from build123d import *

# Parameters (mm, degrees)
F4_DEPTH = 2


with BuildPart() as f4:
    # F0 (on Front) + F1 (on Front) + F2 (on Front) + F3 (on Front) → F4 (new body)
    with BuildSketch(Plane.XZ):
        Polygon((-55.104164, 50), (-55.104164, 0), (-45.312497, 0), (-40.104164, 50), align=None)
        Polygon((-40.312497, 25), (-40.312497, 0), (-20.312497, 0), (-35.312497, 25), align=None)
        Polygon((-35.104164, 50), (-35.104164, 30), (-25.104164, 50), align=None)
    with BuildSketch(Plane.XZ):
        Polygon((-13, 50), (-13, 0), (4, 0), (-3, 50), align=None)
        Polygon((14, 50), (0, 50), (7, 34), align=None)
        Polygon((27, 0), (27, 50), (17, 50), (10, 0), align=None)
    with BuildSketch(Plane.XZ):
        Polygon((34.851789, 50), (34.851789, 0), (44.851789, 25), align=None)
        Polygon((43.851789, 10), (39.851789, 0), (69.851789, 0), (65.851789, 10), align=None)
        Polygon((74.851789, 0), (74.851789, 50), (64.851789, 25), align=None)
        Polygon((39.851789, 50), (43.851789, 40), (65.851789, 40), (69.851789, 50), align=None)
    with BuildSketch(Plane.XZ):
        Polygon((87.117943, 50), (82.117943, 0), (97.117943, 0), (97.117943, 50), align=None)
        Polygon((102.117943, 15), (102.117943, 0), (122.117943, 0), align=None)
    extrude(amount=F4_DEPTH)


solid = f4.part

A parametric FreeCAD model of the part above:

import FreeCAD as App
import Part
import Sketcher

V = App.Vector


def add_polygon(sketch, points):
    """Adds a closed chain of lines whose ends are joined by coincident constraints."""
    first, n = sketch.GeometryCount, len(points)
    for a, b in zip(points, points[1:] + points[:1]):
        sketch.addGeometry(Part.LineSegment(App.Vector(*a, 0), App.Vector(*b, 0)), False)
    for i in range(n):
        sketch.addConstraint(Sketcher.Constraint("Coincident", first + i, 2, first + (i + 1) % n, 1))

doc = App.newDocument("Part")
body = doc.addObject("PartDesign::Body", "Body")
body.AllowCompound = True

# Sketch on XZ plane
sketch1 = doc.addObject("Sketcher::SketchObject", "Sketch")
body.addObject(sketch1)
sketch1.AttachmentSupport = (doc.XZ_Plane, [""])
sketch1.MapMode = "FlatFace"
add_polygon(sketch1, [(-55, 50), (-55, 0), (-45, 0), (-40, 50)])  # lines 0-3
add_polygon(sketch1, [(-40, 25), (-40, 0), (-20, 0), (-35, 25)])  # lines 4-7
add_polygon(sketch1, [(-35, 50), (-35, 30), (-25, 50)])  # lines 8-10
add_polygon(sketch1, [(-13, 50), (-13, 0), (4, 0), (-3, 50)])  # lines 11-14
add_polygon(sketch1, [(14, 50), (0, 50), (7, 34)])  # lines 15-17
add_polygon(sketch1, [(27, 0), (27, 50), (17, 50), (10, 0)])  # lines 18-21
add_polygon(sketch1, [(35, 50), (35, 0), (45, 25)])  # lines 22-24
add_polygon(sketch1, [(44, 10), (40, 0), (70, 0), (66, 10)])  # lines 25-28
add_polygon(sketch1, [(75, 0), (75, 50), (65, 25)])  # lines 29-31
add_polygon(sketch1, [(40, 50), (44, 40), (66, 40), (70, 50)])  # lines 32-35
add_polygon(sketch1, [(87, 50), (82, 0), (97, 0), (97, 50)])  # lines 36-39
add_polygon(sketch1, [(102, 15), (102, 0), (122, 0)])  # lines 40-42
sketch1.addConstraint(Sketcher.Constraint("Vertical", 0))
sketch1.addConstraint(Sketcher.Constraint("Horizontal", 1))
sketch1.addConstraint(Sketcher.Constraint("Horizontal", 3))
sketch1.addConstraint(Sketcher.Constraint("Vertical", 4))
sketch1.addConstraint(Sketcher.Constraint("Horizontal", 5))
sketch1.addConstraint(Sketcher.Constraint("Horizontal", 7))
sketch1.addConstraint(Sketcher.Constraint("Vertical", 8))
sketch1.addConstraint(Sketcher.Constraint("Horizontal", 10))
sketch1.addConstraint(Sketcher.Constraint("Vertical", 11))
sketch1.addConstraint(Sketcher.Constraint("Horizontal", 12))
sketch1.addConstraint(Sketcher.Constraint("Horizontal", 14))
sketch1.addConstraint(Sketcher.Constraint("Horizontal", 15))
sketch1.addConstraint(Sketcher.Constraint("Vertical", 18))
sketch1.addConstraint(Sketcher.Constraint("Horizontal", 19))
sketch1.addConstraint(Sketcher.Constraint("Horizontal", 21))
sketch1.addConstraint(Sketcher.Constraint("Vertical", 22))
sketch1.addConstraint(Sketcher.Constraint("Horizontal", 26))
sketch1.addConstraint(Sketcher.Constraint("Horizontal", 28))
sketch1.addConstraint(Sketcher.Constraint("Vertical", 29))
sketch1.addConstraint(Sketcher.Constraint("Horizontal", 33))
sketch1.addConstraint(Sketcher.Constraint("Horizontal", 35))
sketch1.addConstraint(Sketcher.Constraint("Horizontal", 37))
sketch1.addConstraint(Sketcher.Constraint("Vertical", 38))
sketch1.addConstraint(Sketcher.Constraint("Horizontal", 39))
sketch1.addConstraint(Sketcher.Constraint("Vertical", 40))
sketch1.addConstraint(Sketcher.Constraint("Horizontal", 41))
sketch1.addConstraint(Sketcher.Constraint("PointOnObject", 0, 2, -1))
sketch1.addConstraint(Sketcher.Constraint("PointOnObject", 4, 2, -1))
sketch1.addConstraint(Sketcher.Constraint("PointOnObject", 11, 2, -1))
sketch1.addConstraint(Sketcher.Constraint("PointOnObject", 15, 2, -2))
sketch1.addConstraint(Sketcher.Constraint("PointOnObject", 20, 2, -1))
sketch1.addConstraint(Sketcher.Constraint("PointOnObject", 22, 2, -1))
sketch1.addConstraint(Sketcher.Constraint("PointOnObject", 25, 2, -1))
sketch1.addConstraint(Sketcher.Constraint("PointOnObject", 31, 2, -1))
sketch1.addConstraint(Sketcher.Constraint("PointOnObject", 36, 2, -1))
sketch1.addConstraint(Sketcher.Constraint("PointOnObject", 40, 2, -1))
sketch1.addConstraint(Sketcher.Constraint("Parallel", 23, 25))
sketch1.addConstraint(Sketcher.Constraint("Parallel", 24, 27))
sketch1.addConstraint(Sketcher.Constraint("Parallel", 25, 30))
sketch1.addConstraint(Sketcher.Constraint("Parallel", 27, 31))
sketch1.addConstraint(Sketcher.Constraint("Parallel", 31, 32))
sketch1.addConstraint(Sketcher.Constraint("Parallel", 30, 34))
sketch1.addConstraint(Sketcher.Constraint("Horizontal", 3, 2, 9, 2))
sketch1.addConstraint(Sketcher.Constraint("Horizontal", 10, 2, 13, 2))
sketch1.addConstraint(Sketcher.Constraint("Horizontal", 14, 2, 15, 2))
sketch1.addConstraint(Sketcher.Constraint("Horizontal", 17, 2, 18, 2))
sketch1.addConstraint(Sketcher.Constraint("Horizontal", 7, 2, 23, 2))
sketch1.addConstraint(Sketcher.Constraint("Horizontal", 19, 2, 24, 2))
sketch1.addConstraint(Sketcher.Constraint("Horizontal", 24, 2, 29, 2))
sketch1.addConstraint(Sketcher.Constraint("Horizontal", 23, 2, 30, 2))
sketch1.addConstraint(Sketcher.Constraint("Horizontal", 29, 2, 34, 2))
sketch1.addConstraint(Sketcher.Constraint("Horizontal", 35, 2, 38, 2))
sketch1.addConstraint(Sketcher.Constraint("Vertical", 28, 2, 32, 2))
sketch1.addConstraint(Sketcher.Constraint("Vertical", 27, 2, 33, 2))
sketch1.addConstraint(Sketcher.Constraint("Vertical", 26, 2, 34, 2))
sketch1.addConstraint(Sketcher.Constraint("Equal", 10, 14))
sketch1.addConstraint(Sketcher.Constraint("Equal", 14, 19))
sketch1.addConstraint(Sketcher.Constraint("Equal", 12, 21))
sketch1.addConstraint(Sketcher.Constraint("Equal", 3, 37))
sketch1.addConstraint(Sketcher.Constraint("Equal", 19, 39))
sketch1.addConstraint(Sketcher.Constraint("Equal", 5, 41))
sketch1.addConstraint(Sketcher.Constraint("Equal", 41, 8))
sketch1.addConstraint(Sketcher.Constraint("Equal", 37, 40))
sketch1.addConstraint(Sketcher.Constraint("Equal", 16, 17))
sketch1.addConstraint(Sketcher.Constraint("DistanceX", 3, 2, 3, 1, 15.0))
sketch1.addConstraint(Sketcher.Constraint("DistanceX", 5, 1, 5, 2, 20.0))
sketch1.addConstraint(Sketcher.Constraint("DistanceX", 7, 2, 7, 1, 5.0))
sketch1.addConstraint(Sketcher.Constraint("DistanceX", 10, 2, 10, 1, 10.0))
sketch1.addConstraint(Sketcher.Constraint("DistanceX", 12, 1, 12, 2, 17.0))
sketch1.addConstraint(Sketcher.Constraint("DistanceX", 15, 2, 15, 1, 14.0))
sketch1.addConstraint(Sketcher.Constraint("DistanceX", 26, 1, 26, 2, 30.0))
sketch1.addConstraint(Sketcher.Constraint("DistanceX", 28, 2, 28, 1, 22.0))
sketch1.addConstraint(Sketcher.Constraint("DistanceY", 0, 2, 0, 1, 50.0))
sketch1.addConstraint(Sketcher.Constraint("DistanceX", 11, 2, -1, 1, 13.0))
sketch1.addConstraint(Sketcher.Constraint("DistanceY", -1, 1, 16, 2, 34.0))
sketch1.addConstraint(Sketcher.Constraint("DistanceX", -1, 1, 18, 2, 27.0))
sketch1.addConstraint(Sketcher.Constraint("DistanceY", -1, 1, 27, 2, 10.0))
sketch1.addConstraint(Sketcher.Constraint("DistanceX", 1, 2, 4, 2, 5.0))
sketch1.addConstraint(Sketcher.Constraint("DistanceX", 2, 2, 8, 2, 5.0))
sketch1.addConstraint(Sketcher.Constraint("DistanceX", 22, 2, 25, 2, 5.0))
sketch1.addConstraint(Sketcher.Constraint("DistanceX", 23, 2, 29, 2, 30.0))
sketch1.addConstraint(Sketcher.Constraint("DistanceX", 37, 2, 40, 2, 5.0))
sketch1.addConstraint(Sketcher.Constraint("DistanceX", 1, 1, 1, 2, 9.791667))
sketch1.addConstraint(Sketcher.Constraint("DistanceX", -1, 1, 22, 2, 34.851789))
sketch1.addConstraint(Sketcher.Constraint("DistanceX", 0, 2, -1, 1, 55.104164))
sketch1.addConstraint(Sketcher.Constraint("DistanceX", -1, 1, 36, 2, 82.117943))
pad1 = doc.addObject("PartDesign::Pad", "Pad")
body.addObject(pad1)
pad1.Profile = sketch1
pad1.Length = 2

doc.recompute()
